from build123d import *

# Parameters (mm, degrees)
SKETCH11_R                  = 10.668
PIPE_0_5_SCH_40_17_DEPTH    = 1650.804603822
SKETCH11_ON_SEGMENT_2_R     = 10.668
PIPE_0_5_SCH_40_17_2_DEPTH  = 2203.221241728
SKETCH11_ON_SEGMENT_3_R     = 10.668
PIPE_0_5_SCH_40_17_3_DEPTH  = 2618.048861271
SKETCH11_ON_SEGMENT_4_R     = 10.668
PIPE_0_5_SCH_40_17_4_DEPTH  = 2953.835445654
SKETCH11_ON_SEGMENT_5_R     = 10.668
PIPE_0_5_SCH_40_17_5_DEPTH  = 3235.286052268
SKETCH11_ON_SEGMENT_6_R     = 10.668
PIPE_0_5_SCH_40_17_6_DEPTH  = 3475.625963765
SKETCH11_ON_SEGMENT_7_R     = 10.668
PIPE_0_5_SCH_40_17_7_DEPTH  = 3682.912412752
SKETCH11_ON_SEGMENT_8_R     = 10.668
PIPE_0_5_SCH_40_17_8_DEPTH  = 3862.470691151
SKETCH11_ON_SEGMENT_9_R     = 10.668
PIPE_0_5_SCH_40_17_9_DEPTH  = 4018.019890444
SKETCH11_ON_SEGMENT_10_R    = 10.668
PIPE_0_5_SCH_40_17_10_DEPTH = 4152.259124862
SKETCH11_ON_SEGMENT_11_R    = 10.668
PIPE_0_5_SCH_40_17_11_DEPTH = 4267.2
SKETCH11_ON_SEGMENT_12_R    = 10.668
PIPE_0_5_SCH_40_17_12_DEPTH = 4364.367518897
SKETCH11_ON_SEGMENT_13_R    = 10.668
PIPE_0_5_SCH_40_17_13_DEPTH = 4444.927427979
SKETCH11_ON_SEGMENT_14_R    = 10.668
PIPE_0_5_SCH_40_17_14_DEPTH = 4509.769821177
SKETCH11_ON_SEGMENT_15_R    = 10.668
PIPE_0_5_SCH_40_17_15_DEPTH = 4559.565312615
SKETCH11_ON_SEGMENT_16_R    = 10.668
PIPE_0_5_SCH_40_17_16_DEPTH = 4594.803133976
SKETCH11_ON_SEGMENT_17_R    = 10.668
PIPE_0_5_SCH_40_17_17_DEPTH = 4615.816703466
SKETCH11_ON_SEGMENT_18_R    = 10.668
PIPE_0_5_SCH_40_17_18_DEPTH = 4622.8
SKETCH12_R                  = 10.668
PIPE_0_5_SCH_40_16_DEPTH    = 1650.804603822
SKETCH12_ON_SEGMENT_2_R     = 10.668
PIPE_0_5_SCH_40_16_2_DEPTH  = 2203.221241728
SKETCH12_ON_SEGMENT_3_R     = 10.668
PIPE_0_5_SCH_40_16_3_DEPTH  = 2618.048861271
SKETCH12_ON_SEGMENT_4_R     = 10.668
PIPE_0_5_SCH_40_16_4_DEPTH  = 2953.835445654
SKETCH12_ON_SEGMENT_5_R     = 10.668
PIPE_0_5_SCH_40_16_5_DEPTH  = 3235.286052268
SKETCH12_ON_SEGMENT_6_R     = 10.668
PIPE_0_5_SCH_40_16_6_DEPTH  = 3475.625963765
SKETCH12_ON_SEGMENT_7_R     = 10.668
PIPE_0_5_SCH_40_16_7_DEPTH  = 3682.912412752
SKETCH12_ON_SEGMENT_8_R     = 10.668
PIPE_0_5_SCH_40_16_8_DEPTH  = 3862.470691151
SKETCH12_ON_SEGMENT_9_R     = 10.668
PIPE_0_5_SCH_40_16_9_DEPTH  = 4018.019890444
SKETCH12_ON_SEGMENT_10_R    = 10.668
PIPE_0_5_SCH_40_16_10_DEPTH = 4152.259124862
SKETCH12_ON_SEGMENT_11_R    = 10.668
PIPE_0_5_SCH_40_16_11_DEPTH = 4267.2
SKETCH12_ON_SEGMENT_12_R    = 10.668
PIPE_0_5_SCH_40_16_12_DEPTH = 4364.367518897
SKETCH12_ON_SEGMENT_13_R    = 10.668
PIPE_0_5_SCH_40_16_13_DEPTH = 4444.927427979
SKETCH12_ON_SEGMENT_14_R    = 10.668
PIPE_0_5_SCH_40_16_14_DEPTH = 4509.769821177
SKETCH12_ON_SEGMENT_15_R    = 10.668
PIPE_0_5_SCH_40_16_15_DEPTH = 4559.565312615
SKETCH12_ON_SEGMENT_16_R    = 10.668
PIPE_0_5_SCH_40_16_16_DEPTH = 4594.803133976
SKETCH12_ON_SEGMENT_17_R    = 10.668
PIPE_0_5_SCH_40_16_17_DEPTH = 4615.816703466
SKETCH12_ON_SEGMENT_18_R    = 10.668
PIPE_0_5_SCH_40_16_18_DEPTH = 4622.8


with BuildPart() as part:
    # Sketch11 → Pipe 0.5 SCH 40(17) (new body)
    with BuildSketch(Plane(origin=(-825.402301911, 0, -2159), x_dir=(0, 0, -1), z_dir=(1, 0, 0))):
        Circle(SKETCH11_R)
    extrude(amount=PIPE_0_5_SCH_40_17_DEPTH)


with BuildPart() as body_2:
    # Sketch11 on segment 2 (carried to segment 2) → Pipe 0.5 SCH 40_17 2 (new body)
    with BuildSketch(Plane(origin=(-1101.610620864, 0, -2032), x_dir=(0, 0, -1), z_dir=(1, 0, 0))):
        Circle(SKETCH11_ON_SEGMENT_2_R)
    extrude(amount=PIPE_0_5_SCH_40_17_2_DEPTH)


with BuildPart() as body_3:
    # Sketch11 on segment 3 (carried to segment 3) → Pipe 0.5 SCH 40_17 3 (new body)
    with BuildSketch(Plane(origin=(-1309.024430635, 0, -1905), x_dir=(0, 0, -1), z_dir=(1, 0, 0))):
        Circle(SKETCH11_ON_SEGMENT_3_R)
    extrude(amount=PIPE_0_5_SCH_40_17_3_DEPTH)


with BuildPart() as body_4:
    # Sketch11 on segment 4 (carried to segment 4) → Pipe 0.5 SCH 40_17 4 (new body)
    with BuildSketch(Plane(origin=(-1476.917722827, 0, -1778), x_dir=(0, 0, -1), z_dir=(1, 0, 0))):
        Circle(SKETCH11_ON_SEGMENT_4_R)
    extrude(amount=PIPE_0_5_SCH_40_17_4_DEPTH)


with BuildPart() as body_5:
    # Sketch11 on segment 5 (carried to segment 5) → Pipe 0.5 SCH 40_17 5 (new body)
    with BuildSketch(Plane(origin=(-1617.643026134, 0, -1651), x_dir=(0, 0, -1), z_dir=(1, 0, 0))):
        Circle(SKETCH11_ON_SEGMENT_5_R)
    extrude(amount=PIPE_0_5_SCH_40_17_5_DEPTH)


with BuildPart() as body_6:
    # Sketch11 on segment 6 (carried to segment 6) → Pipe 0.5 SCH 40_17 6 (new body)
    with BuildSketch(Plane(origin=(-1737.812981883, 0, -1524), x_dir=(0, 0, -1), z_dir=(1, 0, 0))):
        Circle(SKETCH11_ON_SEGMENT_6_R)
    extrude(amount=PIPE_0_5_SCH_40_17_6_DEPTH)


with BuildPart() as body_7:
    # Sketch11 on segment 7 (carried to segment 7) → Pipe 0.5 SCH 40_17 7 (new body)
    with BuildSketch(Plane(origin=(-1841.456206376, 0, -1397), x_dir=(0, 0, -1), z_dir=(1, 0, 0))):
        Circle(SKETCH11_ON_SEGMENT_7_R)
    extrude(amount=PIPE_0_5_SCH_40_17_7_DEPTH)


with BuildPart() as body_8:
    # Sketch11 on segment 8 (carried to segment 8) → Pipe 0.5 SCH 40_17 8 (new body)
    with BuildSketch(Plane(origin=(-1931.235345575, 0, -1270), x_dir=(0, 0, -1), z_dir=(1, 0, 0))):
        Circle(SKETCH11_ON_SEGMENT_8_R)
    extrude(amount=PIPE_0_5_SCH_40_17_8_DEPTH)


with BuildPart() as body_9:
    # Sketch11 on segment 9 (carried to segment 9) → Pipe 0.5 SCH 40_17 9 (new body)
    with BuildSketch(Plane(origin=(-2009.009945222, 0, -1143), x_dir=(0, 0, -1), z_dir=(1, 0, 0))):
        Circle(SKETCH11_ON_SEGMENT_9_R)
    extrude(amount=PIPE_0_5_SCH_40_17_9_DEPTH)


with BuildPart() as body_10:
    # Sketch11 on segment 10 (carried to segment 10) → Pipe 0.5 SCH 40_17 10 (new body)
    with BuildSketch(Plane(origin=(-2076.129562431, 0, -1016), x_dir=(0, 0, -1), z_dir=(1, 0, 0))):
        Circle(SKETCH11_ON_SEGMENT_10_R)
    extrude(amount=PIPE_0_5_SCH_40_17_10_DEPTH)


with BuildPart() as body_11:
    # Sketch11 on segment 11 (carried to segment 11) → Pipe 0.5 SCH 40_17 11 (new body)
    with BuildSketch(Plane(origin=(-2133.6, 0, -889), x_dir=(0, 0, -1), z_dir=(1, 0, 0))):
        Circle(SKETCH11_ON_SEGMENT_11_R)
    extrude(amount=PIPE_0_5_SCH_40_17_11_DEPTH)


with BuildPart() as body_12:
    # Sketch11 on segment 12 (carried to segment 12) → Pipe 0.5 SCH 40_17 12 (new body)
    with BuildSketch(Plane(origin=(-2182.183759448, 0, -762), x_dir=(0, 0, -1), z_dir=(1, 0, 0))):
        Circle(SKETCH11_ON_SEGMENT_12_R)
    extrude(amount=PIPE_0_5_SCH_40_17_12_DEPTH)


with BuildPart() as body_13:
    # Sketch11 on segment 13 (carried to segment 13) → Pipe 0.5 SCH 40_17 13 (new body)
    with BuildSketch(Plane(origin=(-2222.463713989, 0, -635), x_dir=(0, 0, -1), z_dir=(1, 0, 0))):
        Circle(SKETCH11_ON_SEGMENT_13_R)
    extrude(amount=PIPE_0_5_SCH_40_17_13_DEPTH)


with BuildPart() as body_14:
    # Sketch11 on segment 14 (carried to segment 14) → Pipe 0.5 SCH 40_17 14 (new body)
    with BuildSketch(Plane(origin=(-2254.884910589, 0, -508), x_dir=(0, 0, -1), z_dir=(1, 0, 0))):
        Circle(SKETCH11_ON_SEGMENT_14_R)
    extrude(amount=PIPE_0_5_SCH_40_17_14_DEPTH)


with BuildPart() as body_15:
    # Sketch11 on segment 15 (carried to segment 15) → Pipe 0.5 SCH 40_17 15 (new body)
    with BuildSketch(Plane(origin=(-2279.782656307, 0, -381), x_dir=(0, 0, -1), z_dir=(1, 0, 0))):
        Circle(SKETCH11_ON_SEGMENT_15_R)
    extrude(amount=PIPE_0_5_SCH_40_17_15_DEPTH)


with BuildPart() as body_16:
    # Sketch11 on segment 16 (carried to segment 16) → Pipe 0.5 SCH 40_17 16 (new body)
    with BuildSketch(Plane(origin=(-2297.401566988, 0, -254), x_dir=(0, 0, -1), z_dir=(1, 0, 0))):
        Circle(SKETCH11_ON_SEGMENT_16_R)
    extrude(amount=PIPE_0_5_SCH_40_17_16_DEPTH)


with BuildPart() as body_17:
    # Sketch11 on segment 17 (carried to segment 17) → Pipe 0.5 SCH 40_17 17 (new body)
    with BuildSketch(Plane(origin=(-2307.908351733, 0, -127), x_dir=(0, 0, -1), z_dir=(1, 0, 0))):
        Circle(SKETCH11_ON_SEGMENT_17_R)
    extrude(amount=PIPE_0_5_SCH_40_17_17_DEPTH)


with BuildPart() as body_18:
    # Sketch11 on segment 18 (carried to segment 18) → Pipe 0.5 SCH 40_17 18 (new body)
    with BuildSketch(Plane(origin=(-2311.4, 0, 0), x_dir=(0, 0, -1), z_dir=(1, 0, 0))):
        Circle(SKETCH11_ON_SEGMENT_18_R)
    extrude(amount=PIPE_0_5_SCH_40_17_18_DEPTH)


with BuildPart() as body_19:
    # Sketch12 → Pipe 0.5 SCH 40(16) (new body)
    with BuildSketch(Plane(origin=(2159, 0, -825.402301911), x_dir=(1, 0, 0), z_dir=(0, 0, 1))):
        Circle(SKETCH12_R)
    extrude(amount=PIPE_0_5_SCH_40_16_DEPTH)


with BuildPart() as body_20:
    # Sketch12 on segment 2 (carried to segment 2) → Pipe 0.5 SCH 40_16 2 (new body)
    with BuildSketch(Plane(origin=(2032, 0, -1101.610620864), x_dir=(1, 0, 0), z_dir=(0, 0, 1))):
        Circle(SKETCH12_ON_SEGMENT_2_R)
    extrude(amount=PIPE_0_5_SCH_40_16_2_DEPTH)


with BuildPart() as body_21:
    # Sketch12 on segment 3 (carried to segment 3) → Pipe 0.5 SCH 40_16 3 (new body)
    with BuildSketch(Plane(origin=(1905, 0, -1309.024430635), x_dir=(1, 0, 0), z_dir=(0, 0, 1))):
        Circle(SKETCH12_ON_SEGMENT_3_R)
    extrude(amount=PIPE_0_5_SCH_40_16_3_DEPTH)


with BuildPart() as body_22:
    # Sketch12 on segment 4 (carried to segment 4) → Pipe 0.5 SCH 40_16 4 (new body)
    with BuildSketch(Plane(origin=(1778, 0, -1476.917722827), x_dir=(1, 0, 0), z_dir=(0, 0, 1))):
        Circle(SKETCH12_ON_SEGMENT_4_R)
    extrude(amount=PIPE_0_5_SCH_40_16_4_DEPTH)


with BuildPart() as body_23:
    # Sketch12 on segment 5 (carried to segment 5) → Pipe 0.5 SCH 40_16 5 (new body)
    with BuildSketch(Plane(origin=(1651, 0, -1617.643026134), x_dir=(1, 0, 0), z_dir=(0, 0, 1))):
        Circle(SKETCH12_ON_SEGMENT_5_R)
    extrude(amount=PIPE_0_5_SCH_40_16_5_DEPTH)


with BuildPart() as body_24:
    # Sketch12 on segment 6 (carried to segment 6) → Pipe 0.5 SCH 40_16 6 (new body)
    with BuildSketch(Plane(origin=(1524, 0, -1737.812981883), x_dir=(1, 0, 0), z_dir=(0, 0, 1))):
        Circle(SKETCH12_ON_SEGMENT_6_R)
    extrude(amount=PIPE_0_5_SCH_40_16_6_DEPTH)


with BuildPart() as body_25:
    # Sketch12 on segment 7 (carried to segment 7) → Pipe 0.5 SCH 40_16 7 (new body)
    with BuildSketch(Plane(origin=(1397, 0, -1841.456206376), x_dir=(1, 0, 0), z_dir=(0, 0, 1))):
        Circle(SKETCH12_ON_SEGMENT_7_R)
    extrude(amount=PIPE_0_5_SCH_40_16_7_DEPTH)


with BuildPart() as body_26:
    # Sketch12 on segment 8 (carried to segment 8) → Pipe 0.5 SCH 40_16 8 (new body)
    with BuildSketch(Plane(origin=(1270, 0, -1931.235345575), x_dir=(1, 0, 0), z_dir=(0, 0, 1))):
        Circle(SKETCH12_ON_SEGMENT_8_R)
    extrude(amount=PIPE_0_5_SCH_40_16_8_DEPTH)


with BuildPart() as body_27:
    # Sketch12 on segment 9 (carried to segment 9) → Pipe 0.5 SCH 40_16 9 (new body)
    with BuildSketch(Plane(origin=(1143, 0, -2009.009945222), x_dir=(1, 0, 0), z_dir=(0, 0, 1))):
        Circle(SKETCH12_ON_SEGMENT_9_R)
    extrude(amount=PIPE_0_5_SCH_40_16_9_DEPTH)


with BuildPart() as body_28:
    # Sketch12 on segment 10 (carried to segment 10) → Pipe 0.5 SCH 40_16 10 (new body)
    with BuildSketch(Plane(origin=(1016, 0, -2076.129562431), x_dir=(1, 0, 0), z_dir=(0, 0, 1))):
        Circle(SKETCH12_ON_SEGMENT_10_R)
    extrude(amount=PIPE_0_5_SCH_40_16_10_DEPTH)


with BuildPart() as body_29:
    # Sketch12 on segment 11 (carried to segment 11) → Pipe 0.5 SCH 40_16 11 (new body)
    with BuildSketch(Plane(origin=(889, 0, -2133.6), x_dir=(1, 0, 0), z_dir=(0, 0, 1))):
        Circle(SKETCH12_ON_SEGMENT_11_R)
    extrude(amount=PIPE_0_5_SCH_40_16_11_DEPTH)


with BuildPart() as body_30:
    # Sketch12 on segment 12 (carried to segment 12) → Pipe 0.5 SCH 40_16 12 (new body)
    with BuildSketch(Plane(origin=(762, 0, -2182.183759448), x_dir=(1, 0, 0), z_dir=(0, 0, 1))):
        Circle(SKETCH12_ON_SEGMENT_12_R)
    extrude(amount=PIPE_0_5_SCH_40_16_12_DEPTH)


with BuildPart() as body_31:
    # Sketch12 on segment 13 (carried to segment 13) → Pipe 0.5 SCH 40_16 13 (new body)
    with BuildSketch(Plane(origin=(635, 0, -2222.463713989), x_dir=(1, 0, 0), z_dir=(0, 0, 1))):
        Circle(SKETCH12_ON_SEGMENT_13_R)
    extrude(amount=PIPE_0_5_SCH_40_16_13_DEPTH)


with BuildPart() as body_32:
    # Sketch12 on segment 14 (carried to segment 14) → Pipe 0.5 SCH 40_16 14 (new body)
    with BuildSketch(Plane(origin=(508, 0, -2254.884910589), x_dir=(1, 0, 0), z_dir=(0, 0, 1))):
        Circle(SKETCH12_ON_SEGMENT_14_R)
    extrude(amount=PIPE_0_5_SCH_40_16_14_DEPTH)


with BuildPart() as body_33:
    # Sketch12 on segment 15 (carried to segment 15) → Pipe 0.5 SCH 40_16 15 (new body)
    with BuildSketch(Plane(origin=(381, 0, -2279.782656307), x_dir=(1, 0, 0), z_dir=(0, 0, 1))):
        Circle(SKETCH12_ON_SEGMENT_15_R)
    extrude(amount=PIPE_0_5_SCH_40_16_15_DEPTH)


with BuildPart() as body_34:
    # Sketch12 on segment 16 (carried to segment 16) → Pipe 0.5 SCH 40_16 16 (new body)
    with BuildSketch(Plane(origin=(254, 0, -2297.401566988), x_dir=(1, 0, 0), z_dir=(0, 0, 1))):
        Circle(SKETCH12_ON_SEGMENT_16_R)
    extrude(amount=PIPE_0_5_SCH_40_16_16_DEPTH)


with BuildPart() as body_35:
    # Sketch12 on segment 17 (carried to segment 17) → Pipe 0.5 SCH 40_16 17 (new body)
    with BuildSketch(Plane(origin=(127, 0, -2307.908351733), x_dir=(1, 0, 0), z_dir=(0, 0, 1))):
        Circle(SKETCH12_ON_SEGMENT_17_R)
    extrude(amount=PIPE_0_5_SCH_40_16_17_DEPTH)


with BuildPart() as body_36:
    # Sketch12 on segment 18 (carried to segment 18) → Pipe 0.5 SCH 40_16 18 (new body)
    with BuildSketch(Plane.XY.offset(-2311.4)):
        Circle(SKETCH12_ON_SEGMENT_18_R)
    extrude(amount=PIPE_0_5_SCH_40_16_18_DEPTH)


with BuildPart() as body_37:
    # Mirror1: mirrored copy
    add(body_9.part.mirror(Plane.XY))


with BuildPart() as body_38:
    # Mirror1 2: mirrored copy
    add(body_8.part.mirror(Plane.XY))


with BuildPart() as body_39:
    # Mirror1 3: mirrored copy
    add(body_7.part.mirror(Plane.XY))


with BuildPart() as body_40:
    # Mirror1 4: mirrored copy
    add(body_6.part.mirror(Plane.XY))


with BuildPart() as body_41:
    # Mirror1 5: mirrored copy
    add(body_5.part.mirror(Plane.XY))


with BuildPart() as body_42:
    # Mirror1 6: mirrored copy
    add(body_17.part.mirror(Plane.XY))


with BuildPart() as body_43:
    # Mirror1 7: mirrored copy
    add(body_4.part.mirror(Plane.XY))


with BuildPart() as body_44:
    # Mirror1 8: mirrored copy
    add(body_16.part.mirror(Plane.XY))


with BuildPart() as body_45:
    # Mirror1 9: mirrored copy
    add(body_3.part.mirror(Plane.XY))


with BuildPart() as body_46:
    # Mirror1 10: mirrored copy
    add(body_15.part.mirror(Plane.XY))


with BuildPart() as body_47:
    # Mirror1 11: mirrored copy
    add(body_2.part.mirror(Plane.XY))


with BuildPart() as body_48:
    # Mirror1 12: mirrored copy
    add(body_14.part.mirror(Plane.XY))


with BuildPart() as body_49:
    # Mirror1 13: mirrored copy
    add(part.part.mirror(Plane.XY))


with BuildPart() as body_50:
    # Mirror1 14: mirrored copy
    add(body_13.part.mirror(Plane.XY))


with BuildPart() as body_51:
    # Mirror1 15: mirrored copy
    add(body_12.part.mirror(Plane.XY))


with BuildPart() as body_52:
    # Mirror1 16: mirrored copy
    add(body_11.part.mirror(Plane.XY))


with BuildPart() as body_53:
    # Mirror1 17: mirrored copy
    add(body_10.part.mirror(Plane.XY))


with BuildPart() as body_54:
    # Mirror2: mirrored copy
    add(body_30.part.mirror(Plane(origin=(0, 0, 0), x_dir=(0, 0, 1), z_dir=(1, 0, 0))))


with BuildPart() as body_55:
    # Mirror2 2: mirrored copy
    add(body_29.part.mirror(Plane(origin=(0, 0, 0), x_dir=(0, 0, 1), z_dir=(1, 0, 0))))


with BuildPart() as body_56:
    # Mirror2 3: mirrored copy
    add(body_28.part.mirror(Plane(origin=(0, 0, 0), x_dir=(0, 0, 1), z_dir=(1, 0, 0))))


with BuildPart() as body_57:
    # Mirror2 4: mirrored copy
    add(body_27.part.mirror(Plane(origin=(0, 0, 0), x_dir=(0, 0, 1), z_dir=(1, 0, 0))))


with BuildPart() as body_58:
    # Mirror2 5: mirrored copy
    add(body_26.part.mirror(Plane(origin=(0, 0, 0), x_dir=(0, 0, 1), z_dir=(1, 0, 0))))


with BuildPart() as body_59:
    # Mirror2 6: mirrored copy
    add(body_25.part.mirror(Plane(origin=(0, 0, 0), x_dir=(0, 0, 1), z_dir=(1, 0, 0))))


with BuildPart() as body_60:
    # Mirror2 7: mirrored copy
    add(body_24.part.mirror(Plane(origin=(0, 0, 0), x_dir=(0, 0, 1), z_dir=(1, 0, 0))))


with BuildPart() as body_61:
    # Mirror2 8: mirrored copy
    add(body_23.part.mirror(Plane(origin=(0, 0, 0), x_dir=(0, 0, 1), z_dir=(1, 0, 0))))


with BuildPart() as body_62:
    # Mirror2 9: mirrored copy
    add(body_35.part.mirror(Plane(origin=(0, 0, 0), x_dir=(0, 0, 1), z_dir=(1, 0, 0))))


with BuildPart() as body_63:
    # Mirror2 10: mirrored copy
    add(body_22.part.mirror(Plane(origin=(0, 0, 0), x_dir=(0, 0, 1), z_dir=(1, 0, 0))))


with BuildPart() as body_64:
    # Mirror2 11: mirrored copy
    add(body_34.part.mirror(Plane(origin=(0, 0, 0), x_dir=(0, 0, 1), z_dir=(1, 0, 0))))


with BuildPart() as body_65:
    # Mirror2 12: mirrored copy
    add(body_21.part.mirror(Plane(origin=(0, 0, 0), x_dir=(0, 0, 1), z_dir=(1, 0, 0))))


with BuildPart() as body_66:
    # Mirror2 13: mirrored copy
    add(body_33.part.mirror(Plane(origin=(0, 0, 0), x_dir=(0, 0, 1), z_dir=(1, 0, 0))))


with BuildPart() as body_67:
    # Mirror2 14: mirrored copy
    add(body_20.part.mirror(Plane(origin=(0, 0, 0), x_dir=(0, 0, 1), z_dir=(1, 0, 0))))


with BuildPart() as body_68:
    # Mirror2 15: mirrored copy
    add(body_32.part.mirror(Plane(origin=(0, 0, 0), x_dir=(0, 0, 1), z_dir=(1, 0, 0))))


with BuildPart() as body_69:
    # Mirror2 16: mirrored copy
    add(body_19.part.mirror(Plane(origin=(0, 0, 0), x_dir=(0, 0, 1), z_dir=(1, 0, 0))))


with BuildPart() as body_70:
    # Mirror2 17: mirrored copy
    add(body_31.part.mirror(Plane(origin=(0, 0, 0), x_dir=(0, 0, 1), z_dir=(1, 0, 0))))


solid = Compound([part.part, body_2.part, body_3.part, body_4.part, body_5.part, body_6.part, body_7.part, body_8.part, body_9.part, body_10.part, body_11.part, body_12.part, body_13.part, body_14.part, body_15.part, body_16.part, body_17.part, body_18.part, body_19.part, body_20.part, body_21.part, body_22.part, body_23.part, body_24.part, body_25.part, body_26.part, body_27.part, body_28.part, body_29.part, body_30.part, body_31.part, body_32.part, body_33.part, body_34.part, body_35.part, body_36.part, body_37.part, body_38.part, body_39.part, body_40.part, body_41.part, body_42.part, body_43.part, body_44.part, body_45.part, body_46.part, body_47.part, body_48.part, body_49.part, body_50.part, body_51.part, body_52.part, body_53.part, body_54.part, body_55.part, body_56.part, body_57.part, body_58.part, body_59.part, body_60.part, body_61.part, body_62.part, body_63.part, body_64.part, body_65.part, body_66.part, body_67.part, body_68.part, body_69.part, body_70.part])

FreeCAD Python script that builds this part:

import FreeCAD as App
import Part
import Sketcher
Q = App.Units.Quantity

doc = App.newDocument("Part")
body = doc.addObject("PartDesign::Body", "Body")

# Sketch on YZ plane
sketch1 = body.newObject("Sketcher::SketchObject", "Sketch")
sketch1.AttachmentSupport = (doc.getObject("YZ_Plane"), [""])
sketch1.MapMode = "FlatFace"
sketch1.AttachmentOffset = App.Placement(App.Vector(0, 0, -825.402302), App.Rotation())
sketch1.addGeometry(Part.Circle(App.Vector(0, -2159, 0), App.Vector(0, 0, 1), 11), False)
sketch1.addConstraint(Sketcher.Constraint("PointOnObject", 0, 3, -2))
sketch1.addConstraint(Sketcher.Constraint("Diameter", 0, Q("0.84 in")))
sketch1.addConstraint(Sketcher.Constraint("DistanceY", 0, 3, -1, 1, Q("85 in")))
pad1 = body.newObject("PartDesign::Pad", "Pad")
pad1.Profile = sketch1
pad1.Length = 1650.804604
body2 = doc.addObject("PartDesign::Body", "Body001")

# Sketch on YZ plane
sketch2 = body2.newObject("Sketcher::SketchObject", "Sketch001")
sketch2.AttachmentSupport = (doc.getObject("YZ_Plane001"), [""])
sketch2.MapMode = "FlatFace"
sketch2.AttachmentOffset = App.Placement(App.Vector(0, 0, -1101.610621), App.Rotation())
sketch2.addGeometry(Part.Circle(App.Vector(0, -2032, 0), App.Vector(0, 0, 1), 11), False)
sketch2.addConstraint(Sketcher.Constraint("PointOnObject", 0, 3, -2))
sketch2.addConstraint(Sketcher.Constraint("Diameter", 0, Q("0.84 in")))
sketch2.addConstraint(Sketcher.Constraint("DistanceY", 0, 3, -1, 1, Q("80 in")))
pad2 = body2.newObject("PartDesign::Pad", "Pad001")
pad2.Profile = sketch2
pad2.Length = 2203.221242
body3 = doc.addObject("PartDesign::Body", "Body002")

# Sketch on YZ plane
sketch3 = body3.newObject("Sketcher::SketchObject", "Sketch002")
sketch3.AttachmentSupport = (doc.getObject("YZ_Plane002"), [""])
sketch3.MapMode = "FlatFace"
sketch3.AttachmentOffset = App.Placement(App.Vector(0, 0, -1309.024431), App.Rotation())
sketch3.addGeometry(Part.Circle(App.Vector(0, -1905, 0), App.Vector(0, 0, 1), 11), False)
sketch3.addConstraint(Sketcher.Constraint("PointOnObject", 0, 3, -2))
sketch3.addConstraint(Sketcher.Constraint("Diameter", 0, Q("0.84 in")))
sketch3.addConstraint(Sketcher.Constraint("DistanceY", 0, 3, -1, 1, Q("75 in")))
pad3 = body3.newObject("PartDesign::Pad", "Pad002")
pad3.Profile = sketch3
pad3.Length = 2618.048861
body4 = doc.addObject("PartDesign::Body", "Body003")

# Sketch on YZ plane
sketch4 = body4.newObject("Sketcher::SketchObject", "Sketch003")
sketch4.AttachmentSupport = (doc.getObject("YZ_Plane003"), [""])
sketch4.MapMode = "FlatFace"
sketch4.AttachmentOffset = App.Placement(App.Vector(0, 0, -1476.917723), App.Rotation())
sketch4.addGeometry(Part.Circle(App.Vector(0, -1778, 0), App.Vector(0, 0, 1), 11), False)
sketch4.addConstraint(Sketcher.Constraint("PointOnObject", 0, 3, -2))
sketch4.addConstraint(Sketcher.Constraint("Diameter", 0, Q("0.84 in")))
sketch4.addConstraint(Sketcher.Constraint("DistanceY", 0, 3, -1, 1, Q("70 in")))
pad4 = body4.newObject("PartDesign::Pad", "Pad003")
pad4.Profile = sketch4
pad4.Length = 2953.835446
body5 = doc.addObject("PartDesign::Body", "Body004")

# Sketch on YZ plane
sketch5 = body5.newObject("Sketcher::SketchObject", "Sketch004")
sketch5.AttachmentSupport = (doc.getObject("YZ_Plane004"), [""])
sketch5.MapMode = "FlatFace"
sketch5.AttachmentOffset = App.Placement(App.Vector(0, 0, -1617.643026), App.Rotation())
sketch5.addGeometry(Part.Circle(App.Vector(0, -1651, 0), App.Vector(0, 0, 1), 11), False)
sketch5.addConstraint(Sketcher.Constraint("PointOnObject", 0, 3, -2))
sketch5.addConstraint(Sketcher.Constraint("Diameter", 0, Q("0.84 in")))
sketch5.addConstraint(Sketcher.Constraint("DistanceY", 0, 3, -1, 1, Q("65 in")))
pad5 = body5.newObject("PartDesign::Pad", "Pad004")
pad5.Profile = sketch5
pad5.Length = 3235.286052
body6 = doc.addObject("PartDesign::Body", "Body005")

# Sketch on YZ plane
sketch6 = body6.newObject("Sketcher::SketchObject", "Sketch005")
sketch6.AttachmentSupport = (doc.getObject("YZ_Plane005"), [""])
sketch6.MapMode = "FlatFace"
sketch6.AttachmentOffset = App.Placement(App.Vector(0, 0, -1737.812982), App.Rotation())
sketch6.addGeometry(Part.Circle(App.Vector(0, -1524, 0), App.Vector(0, 0, 1), 11), False)
sketch6.addConstraint(Sketcher.Constraint("PointOnObject", 0, 3, -2))
sketch6.addConstraint(Sketcher.Constraint("Diameter", 0, Q("0.84 in")))
sketch6.addConstraint(Sketcher.Constraint("DistanceY", 0, 3, -1, 1, Q("60 in")))
pad6 = body6.newObject("PartDesign::Pad", "Pad005")
pad6.Profile = sketch6
pad6.Length = 3475.625964
body7 = doc.addObject("PartDesign::Body", "Body006")

# Sketch on YZ plane
sketch7 = body7.newObject("Sketcher::SketchObject", "Sketch006")
sketch7.AttachmentSupport = (doc.getObject("YZ_Plane006"), [""])
sketch7.MapMode = "FlatFace"
sketch7.AttachmentOffset = App.Placement(App.Vector(0, 0, -1841.456206), App.Rotation())
sketch7.addGeometry(Part.Circle(App.Vector(0, -1397, 0), App.Vector(0, 0, 1), 11), False)
sketch7.addConstraint(Sketcher.Constraint("PointOnObject", 0, 3, -2))
sketch7.addConstraint(Sketcher.Constraint("Diameter", 0, Q("0.84 in")))
sketch7.addConstraint(Sketcher.Constraint("DistanceY", 0, 3, -1, 1, Q("55 in")))
pad7 = body7.newObject("PartDesign::Pad", "Pad006")
pad7.Profile = sketch7
pad7.Length = 3682.912413
body8 = doc.addObject("PartDesign::Body", "Body007")

# Sketch on YZ plane
sketch8 = body8.newObject("Sketcher::SketchObject", "Sketch007")
sketch8.AttachmentSupport = (doc.getObject("YZ_Plane007"), [""])
sketch8.MapMode = "FlatFace"
sketch8.AttachmentOffset = App.Placement(App.Vector(0, 0, -1931.235346), App.Rotation())
sketch8.addGeometry(Part.Circle(App.Vector(0, -1270, 0), App.Vector(0, 0, 1), 11), False)
sketch8.addConstraint(Sketcher.Constraint("PointOnObject", 0, 3, -2))
sketch8.addConstraint(Sketcher.Constraint("Diameter", 0, Q("0.84 in")))
sketch8.addConstraint(Sketcher.Constraint("DistanceY", 0, 3, -1, 1, Q("50 in")))
pad8 = body8.newObject("PartDesign::Pad", "Pad007")
pad8.Profile = sketch8
pad8.Length = 3862.470691
body9 = doc.addObject("PartDesign::Body", "Body008")

# Sketch on YZ plane
sketch9 = body9.newObject("Sketcher::SketchObject", "Sketch008")
sketch9.AttachmentSupport = (doc.getObject("YZ_Plane008"), [""])
sketch9.MapMode = "FlatFace"
sketch9.AttachmentOffset = App.Placement(App.Vector(0, 0, -2009.009945), App.Rotation())
sketch9.addGeometry(Part.Circle(App.Vector(0, -1143, 0), App.Vector(0, 0, 1), 11), False)
sketch9.addConstraint(Sketcher.Constraint("PointOnObject", 0, 3, -2))
sketch9.addConstraint(Sketcher.Constraint("Diameter", 0, Q("0.84 in")))
sketch9.addConstraint(Sketcher.Constraint("DistanceY", 0, 3, -1, 1, Q("45 in")))
pad9 = body9.newObject("PartDesign::Pad", "Pad008")
pad9.Profile = sketch9
pad9.Length = 4018.01989
body10 = doc.addObject("PartDesign::Body", "Body009")

# Sketch on YZ plane
sketch10 = body10.newObject("Sketcher::SketchObject", "Sketch009")
sketch10.AttachmentSupport = (doc.getObject("YZ_Plane009"), [""])
sketch10.MapMode = "FlatFace"
sketch10.AttachmentOffset = App.Placement(App.Vector(0, 0, -2076.129562), App.Rotation())
sketch10.addGeometry(Part.Circle(App.Vector(0, -1016, 0), App.Vector(0, 0, 1), 11), False)
sketch10.addConstraint(Sketcher.Constraint("PointOnObject", 0, 3, -2))
sketch10.addConstraint(Sketcher.Constraint("Diameter", 0, Q("0.84 in")))
sketch10.addConstraint(Sketcher.Constraint("DistanceY", 0, 3, -1, 1, Q("40 in")))
pad10 = body10.newObject("PartDesign::Pad", "Pad009")
pad10.Profile = sketch10
pad10.Length = 4152.259125
body11 = doc.addObject("PartDesign::Body", "Body010")

# Sketch on YZ plane
sketch11 = body11.newObject("Sketcher::SketchObject", "Sketch010")
sketch11.AttachmentSupport = (doc.getObject("YZ_Plane010"), [""])
sketch11.MapMode = "FlatFace"
sketch11.AttachmentOffset = App.Placement(App.Vector(0, 0, -84 * 25.4), App.Rotation())
sketch11.addGeometry(Part.Circle(App.Vector(0, -889, 0), App.Vector(0, 0, 1), 11), False)
sketch11.addConstraint(Sketcher.Constraint("PointOnObject", 0, 3, -2))
sketch11.addConstraint(Sketcher.Constraint("Diameter", 0, Q("0.84 in")))
sketch11.addConstraint(Sketcher.Constraint("DistanceY", 0, 3, -1, 1, Q("35 in")))
pad11 = body11.newObject("PartDesign::Pad", "Pad010")
pad11.Profile = sketch11
pad11.Length = Q("168 in")
body12 = doc.addObject("PartDesign::Body", "Body011")

# Sketch on YZ plane
sketch12 = body12.newObject("Sketcher::SketchObject", "Sketch011")
sketch12.AttachmentSupport = (doc.getObject("YZ_Plane011"), [""])
sketch12.MapMode = "FlatFace"
sketch12.AttachmentOffset = App.Placement(App.Vector(0, 0, -2182.183759), App.Rotation())
sketch12.addGeometry(Part.Circle(App.Vector(0, -762, 0), App.Vector(0, 0, 1), 11), False)
sketch12.addConstraint(Sketcher.Constraint("PointOnObject", 0, 3, -2))
sketch12.addConstraint(Sketcher.Constraint("Diameter", 0, Q("0.84 in")))
sketch12.addConstraint(Sketcher.Constraint("DistanceY", 0, 3, -1, 1, Q("30 in")))
pad12 = body12.newObject("PartDesign::Pad", "Pad011")
pad12.Profile = sketch12
pad12.Length = 4364.367519
body13 = doc.addObject("PartDesign::Body", "Body012")

# Sketch on YZ plane
sketch13 = body13.newObject("Sketcher::SketchObject", "Sketch012")
sketch13.AttachmentSupport = (doc.getObject("YZ_Plane012"), [""])
sketch13.MapMode = "FlatFace"
sketch13.AttachmentOffset = App.Placement(App.Vector(0, 0, -2222.463714), App.Rotation())
sketch13.addGeometry(Part.Circle(App.Vector(0, -635, 0), App.Vector(0, 0, 1), 11), False)
sketch13.addConstraint(Sketcher.Constraint("PointOnObject", 0, 3, -2))
sketch13.addConstraint(Sketcher.Constraint("Diameter", 0, Q("0.84 in")))
sketch13.addConstraint(Sketcher.Constraint("DistanceY", 0, 3, -1, 1, Q("25 in")))
pad13 = body13.newObject("PartDesign::Pad", "Pad012")
pad13.Profile = sketch13
pad13.Length = 4444.927428
body14 = doc.addObject("PartDesign::Body", "Body013")

# Sketch on YZ plane
sketch14 = body14.newObject("Sketcher::SketchObject", "Sketch013")
sketch14.AttachmentSupport = (doc.getObject("YZ_Plane013"), [""])
sketch14.MapMode = "FlatFace"
sketch14.AttachmentOffset = App.Placement(App.Vector(0, 0, -2254.884911), App.Rotation())
sketch14.addGeometry(Part.Circle(App.Vector(0, -508, 0), App.Vector(0, 0, 1), 11), False)
sketch14.addConstraint(Sketcher.Constraint("PointOnObject", 0, 3, -2))
sketch14.addConstraint(Sketcher.Constraint("Diameter", 0, Q("0.84 in")))
sketch14.addConstraint(Sketcher.Constraint("DistanceY", 0, 3, -1, 1, Q("20 in")))
pad14 = body14.newObject("PartDesign::Pad", "Pad013")
pad14.Profile = sketch14
pad14.Length = 4509.769821
body15 = doc.addObject("PartDesign::Body", "Body014")

# Sketch on YZ plane
sketch15 = body15.newObject("Sketcher::SketchObject", "Sketch014")
sketch15.AttachmentSupport = (doc.getObject("YZ_Plane014"), [""])
sketch15.MapMode = "FlatFace"
sketch15.AttachmentOffset = App.Placement(App.Vector(0, 0, -2279.782656), App.Rotation())
sketch15.addGeometry(Part.Circle(App.Vector(0, -381, 0), App.Vector(0, 0, 1), 11), False)
sketch15.addConstraint(Sketcher.Constraint("PointOnObject", 0, 3, -2))
sketch15.addConstraint(Sketcher.Constraint("Diameter", 0, Q("0.84 in")))
sketch15.addConstraint(Sketcher.Constraint("DistanceY", 0, 3, -1, 1, Q("15 in")))
pad15 = body15.newObject("PartDesign::Pad", "Pad014")
pad15.Profile = sketch15
pad15.Length = 4559.565313
body16 = doc.addObject("PartDesign::Body", "Body015")

# Sketch on YZ plane
sketch16 = body16.newObject("Sketcher::SketchObject", "Sketch015")
sketch16.AttachmentSupport = (doc.getObject("YZ_Plane015"), [""])
sketch16.MapMode = "FlatFace"
sketch16.AttachmentOffset = App.Placement(App.Vector(0, 0, -2297.401567), App.Rotation())
sketch16.addGeometry(Part.Circle(App.Vector(0, -254, 0), App.Vector(0, 0, 1), 11), False)
sketch16.addConstraint(Sketcher.Constraint("PointOnObject", 0, 3, -2))
sketch16.addConstraint(Sketcher.Constraint("Diameter", 0, Q("0.84 in")))
sketch16.addConstraint(Sketcher.Constraint("DistanceY", 0, 3, -1, 1, Q("10 in")))
pad16 = body16.newObject("PartDesign::Pad", "Pad015")
pad16.Profile = sketch16
pad16.Length = 4594.803134
body17 = doc.addObject("PartDesign::Body", "Body016")

# Sketch on YZ plane
sketch17 = body17.newObject("Sketcher::SketchObject", "Sketch016")
sketch17.AttachmentSupport = (doc.getObject("YZ_Plane016"), [""])
sketch17.MapMode = "FlatFace"
sketch17.AttachmentOffset = App.Placement(App.Vector(0, 0, -2307.908352), App.Rotation())
sketch17.addGeometry(Part.Circle(App.Vector(0, -127, 0), App.Vector(0, 0, 1), 11), False)
sketch17.addConstraint(Sketcher.Constraint("PointOnObject", 0, 3, -2))
sketch17.addConstraint(Sketcher.Constraint("Diameter", 0, Q("0.84 in")))
sketch17.addConstraint(Sketcher.Constraint("DistanceY", 0, 3, -1, 1, Q("5 in")))
pad17 = body17.newObject("PartDesign::Pad", "Pad016")
pad17.Profile = sketch17
pad17.Length = 4615.816703
body18 = doc.addObject("PartDesign::Body", "Body017")

# Sketch on YZ plane
sketch18 = body18.newObject("Sketcher::SketchObject", "Sketch017")
sketch18.AttachmentSupport = (doc.getObject("YZ_Plane017"), [""])
sketch18.MapMode = "FlatFace"
sketch18.AttachmentOffset = App.Placement(App.Vector(0, 0, -91 * 25.4), App.Rotation())
sketch18.addGeometry(Part.Circle(App.Vector(0, 0, 0), App.Vector(0, 0, 1), 11), False)
sketch18.addConstraint(Sketcher.Constraint("Coincident", 0, 3, -1, 1))
sketch18.addConstraint(Sketcher.Constraint("Diameter", 0, Q("0.84 in")))
pad18 = body18.newObject("PartDesign::Pad", "Pad017")
pad18.Profile = sketch18
pad18.Length = Q("182 in")
body19 = doc.addObject("PartDesign::Body", "Body018")

# Sketch on XY plane
sketch19 = body19.newObject("Sketcher::SketchObject", "Sketch018")
sketch19.AttachmentSupport = (doc.getObject("XY_Plane018"), [""])
sketch19.MapMode = "FlatFace"
sketch19.AttachmentOffset = App.Placement(App.Vector(0, 0, -825.402302), App.Rotation())
sketch19.addGeometry(Part.Circle(App.Vector(2159, 0, 0), App.Vector(0, 0, 1), 11), False)
sketch19.addConstraint(Sketcher.Constraint("PointOnObject", 0, 3, -1))
sketch19.addConstraint(Sketcher.Constraint("Diameter", 0, Q("0.84 in")))
sketch19.addConstraint(Sketcher.Constraint("DistanceX", -1, 1, 0, 3, Q("85 in")))
pad19 = body19.newObject("PartDesign::Pad", "Pad018")
pad19.Profile = sketch19
pad19.Length = 1650.804604
body20 = doc.addObject("PartDesign::Body", "Body019")

# Sketch on XY plane
sketch20 = body20.newObject("Sketcher::SketchObject", "Sketch019")
sketch20.AttachmentSupport = (doc.getObject("XY_Plane019"), [""])
sketch20.MapMode = "FlatFace"
sketch20.AttachmentOffset = App.Placement(App.Vector(0, 0, -1101.610621), App.Rotation())
sketch20.addGeometry(Part.Circle(App.Vector(2032, 0, 0), App.Vector(0, 0, 1), 11), False)
sketch20.addConstraint(Sketcher.Constraint("PointOnObject", 0, 3, -1))
sketch20.addConstraint(Sketcher.Constraint("Diameter", 0, Q("0.84 in")))
sketch20.addConstraint(Sketcher.Constraint("DistanceX", -1, 1, 0, 3, Q("80 in")))
pad20 = body20.newObject("PartDesign::Pad", "Pad019")
pad20.Profile = sketch20
pad20.Length = 2203.221242
body21 = doc.addObject("PartDesign::Body", "Body020")

# Sketch on XY plane
sketch21 = body21.newObject("Sketcher::SketchObject", "Sketch020")
sketch21.AttachmentSupport = (doc.getObject("XY_Plane020"), [""])
sketch21.MapMode = "FlatFace"
sketch21.AttachmentOffset = App.Placement(App.Vector(0, 0, -1309.024431), App.Rotation())
sketch21.addGeometry(Part.Circle(App.Vector(1905, 0, 0), App.Vector(0, 0, 1), 11), False)
sketch21.addConstraint(Sketcher.Constraint("PointOnObject", 0, 3, -1))
sketch21.addConstraint(Sketcher.Constraint("Diameter", 0, Q("0.84 in")))
sketch21.addConstraint(Sketcher.Constraint("DistanceX", -1, 1, 0, 3, Q("75 in")))
pad21 = body21.newObject("PartDesign::Pad", "Pad020")
pad21.Profile = sketch21
pad21.Length = 2618.048861
body22 = doc.addObject("PartDesign::Body", "Body021")

# Sketch on XY plane
sketch22 = body22.newObject("Sketcher::SketchObject", "Sketch021")
sketch22.AttachmentSupport = (doc.getObject("XY_Plane021"), [""])
sketch22.MapMode = "FlatFace"
sketch22.AttachmentOffset = App.Placement(App.Vector(0, 0, -1476.917723), App.Rotation())
sketch22.addGeometry(Part.Circle(App.Vector(1778, 0, 0), App.Vector(0, 0, 1), 11), False)
sketch22.addConstraint(Sketcher.Constraint("PointOnObject", 0, 3, -1))
sketch22.addConstraint(Sketcher.Constraint("Diameter", 0, Q("0.84 in")))
sketch22.addConstraint(Sketcher.Constraint("DistanceX", -1, 1, 0, 3, Q("70 in")))
pad22 = body22.newObject("PartDesign::Pad", "Pad021")
pad22.Profile = sketch22
pad22.Length = 2953.835446
body23 = doc.addObject("PartDesign::Body", "Body022")

# Sketch on XY plane
sketch23 = body23.newObject("Sketcher::SketchObject", "Sketch022")
sketch23.AttachmentSupport = (doc.getObject("XY_Plane022"), [""])
sketch23.MapMode = "FlatFace"
sketch23.AttachmentOffset = App.Placement(App.Vector(0, 0, -1617.643026), App.Rotation())
sketch23.addGeometry(Part.Circle(App.Vector(1651, 0, 0), App.Vector(0, 0, 1), 11), False)
sketch23.addConstraint(Sketcher.Constraint("PointOnObject", 0, 3, -1))
sketch23.addConstraint(Sketcher.Constraint("Diameter", 0, Q("0.84 in")))
sketch23.addConstraint(Sketcher.Constraint("DistanceX", -1, 1, 0, 3, Q("65 in")))
pad23 = body23.newObject("PartDesign::Pad", "Pad022")
pad23.Profile = sketch23
pad23.Length = 3235.286052
body24 = doc.addObject("PartDesign::Body", "Body023")

# Sketch on XY plane
sketch24 = body24.newObject("Sketcher::SketchObject", "Sketch023")
sketch24.AttachmentSupport = (doc.getObject("XY_Plane023"), [""])
sketch24.MapMode = "FlatFace"
sketch24.AttachmentOffset = App.Placement(App.Vector(0, 0, -1737.812982), App.Rotation())
sketch24.addGeometry(Part.Circle(App.Vector(1524, 0, 0), App.Vector(0, 0, 1), 11), False)
sketch24.addConstraint(Sketcher.Constraint("PointOnObject", 0, 3, -1))
sketch24.addConstraint(Sketcher.Constraint("Diameter", 0, Q("0.84 in")))
sketch24.addConstraint(Sketcher.Constraint("DistanceX", -1, 1, 0, 3, Q("60 in")))
pad24 = body24.newObject("PartDesign::Pad", "Pad023")
pad24.Profile = sketch24
pad24.Length = 3475.625964
body25 = doc.addObject("PartDesign::Body", "Body024")

# Sketch on XY plane
sketch25 = body25.newObject("Sketcher::SketchObject", "Sketch024")
sketch25.AttachmentSupport = (doc.getObject("XY_Plane024"), [""])
sketch25.MapMode = "FlatFace"
sketch25.AttachmentOffset = App.Placement(App.Vector(0, 0, -1841.456206), App.Rotation())
sketch25.addGeometry(Part.Circle(App.Vector(1397, 0, 0), App.Vector(0, 0, 1), 11), False)
sketch25.addConstraint(Sketcher.Constraint("PointOnObject", 0, 3, -1))
sketch25.addConstraint(Sketcher.Constraint("Diameter", 0, Q("0.84 in")))
sketch25.addConstraint(Sketcher.Constraint("DistanceX", -1, 1, 0, 3, Q("55 in")))
pad25 = body25.newObject("PartDesign::Pad", "Pad024")
pad25.Profile = sketch25
pad25.Length = 3682.912413
body26 = doc.addObject("PartDesign::Body", "Body025")

# Sketch on XY plane
sketch26 = body26.newObject("Sketcher::SketchObject", "Sketch025")
sketch26.AttachmentSupport = (doc.getObject("XY_Plane025"), [""])
sketch26.MapMode = "FlatFace"
sketch26.AttachmentOffset = App.Placement(App.Vector(0, 0, -1931.235346), App.Rotation())
sketch26.addGeometry(Part.Circle(App.Vector(1270, 0, 0), App.Vector(0, 0, 1), 11), False)
sketch26.addConstraint(Sketcher.Constraint("PointOnObject", 0, 3, -1))
sketch26.addConstraint(Sketcher.Constraint("Diameter", 0, Q("0.84 in")))
sketch26.addConstraint(Sketcher.Constraint("DistanceX", -1, 1, 0, 3, Q("50 in")))
pad26 = body26.newObject("PartDesign::Pad", "Pad025")
pad26.Profile = sketch26
pad26.Length = 3862.470691
body27 = doc.addObject("PartDesign::Body", "Body026")

# Sketch on XY plane
sketch27 = body27.newObject("Sketcher::SketchObject", "Sketch026")
sketch27.AttachmentSupport = (doc.getObject("XY_Plane026"), [""])
sketch27.MapMode = "FlatFace"
sketch27.AttachmentOffset = App.Placement(App.Vector(0, 0, -2009.009945), App.Rotation())
sketch27.addGeometry(Part.Circle(App.Vector(1143, 0, 0), App.Vector(0, 0, 1), 11), False)
sketch27.addConstraint(Sketcher.Constraint("PointOnObject", 0, 3, -1))
sketch27.addConstraint(Sketcher.Constraint("Diameter", 0, Q("0.84 in")))
sketch27.addConstraint(Sketcher.Constraint("DistanceX", -1, 1, 0, 3, Q("45 in")))
pad27 = body27.newObject("PartDesign::Pad", "Pad026")
pad27.Profile = sketch27
pad27.Length = 4018.01989
body28 = doc.addObject("PartDesign::Body", "Body027")

# Sketch on XY plane
sketch28 = body28.newObject("Sketcher::SketchObject", "Sketch027")
sketch28.AttachmentSupport = (doc.getObject("XY_Plane027"), [""])
sketch28.MapMode = "FlatFace"
sketch28.AttachmentOffset = App.Placement(App.Vector(0, 0, -2076.129562), App.Rotation())
sketch28.addGeometry(Part.Circle(App.Vector(1016, 0, 0), App.Vector(0, 0, 1), 11), False)
sketch28.addConstraint(Sketcher.Constraint("PointOnObject", 0, 3, -1))
sketch28.addConstraint(Sketcher.Constraint("Diameter", 0, Q("0.84 in")))
sketch28.addConstraint(Sketcher.Constraint("DistanceX", -1, 1, 0, 3, Q("40 in")))
pad28 = body28.newObject("PartDesign::Pad", "Pad027")
pad28.Profile = sketch28
pad28.Length = 4152.259125
body29 = doc.addObject("PartDesign::Body", "Body028")

# Sketch on XY plane
sketch29 = body29.newObject("Sketcher::SketchObject", "Sketch028")
sketch29.AttachmentSupport = (doc.getObject("XY_Plane028"), [""])
sketch29.MapMode = "FlatFace"
sketch29.AttachmentOffset = App.Placement(App.Vector(0, 0, -84 * 25.4), App.Rotation())
sketch29.addGeometry(Part.Circle(App.Vector(889, 0, 0), App.Vector(0, 0, 1), 11), False)
sketch29.addConstraint(Sketcher.Constraint("PointOnObject", 0, 3, -1))
sketch29.addConstraint(Sketcher.Constraint("Diameter", 0, Q("0.84 in")))
sketch29.addConstraint(Sketcher.Constraint("DistanceX", -1, 1, 0, 3, Q("35 in")))
pad29 = body29.newObject("PartDesign::Pad", "Pad028")
pad29.Profile = sketch29
pad29.Length = Q("168 in")
body30 = doc.addObject("PartDesign::Body", "Body029")

# Sketch on XY plane
sketch30 = body30.newObject("Sketcher::SketchObject", "Sketch029")
sketch30.AttachmentSupport = (doc.getObject("XY_Plane029"), [""])
sketch30.MapMode = "FlatFace"
sketch30.AttachmentOffset = App.Placement(App.Vector(0, 0, -2182.183759), App.Rotation())
sketch30.addGeometry(Part.Circle(App.Vector(762, 0, 0), App.Vector(0, 0, 1), 11), False)
sketch30.addConstraint(Sketcher.Constraint("PointOnObject", 0, 3, -1))
sketch30.addConstraint(Sketcher.Constraint("Diameter", 0, Q("0.84 in")))
sketch30.addConstraint(Sketcher.Constraint("DistanceX", -1, 1, 0, 3, Q("30 in")))
pad30 = body30.newObject("PartDesign::Pad", "Pad029")
pad30.Profile = sketch30
pad30.Length = 4364.367519
body31 = doc.addObject("PartDesign::Body", "Body030")

# Sketch on XY plane
sketch31 = body31.newObject("Sketcher::SketchObject", "Sketch030")
sketch31.AttachmentSupport = (doc.getObject("XY_Plane030"), [""])
sketch31.MapMode = "FlatFace"
sketch31.AttachmentOffset = App.Placement(App.Vector(0, 0, -2222.463714), App.Rotation())
sketch31.addGeometry(Part.Circle(App.Vector(635, 0, 0), App.Vector(0, 0, 1), 11), False)
sketch31.addConstraint(Sketcher.Constraint("PointOnObject", 0, 3, -1))
sketch31.addConstraint(Sketcher.Constraint("Diameter", 0, Q("0.84 in")))
sketch31.addConstraint(Sketcher.Constraint("DistanceX", -1, 1, 0, 3, Q("25 in")))
pad31 = body31.newObject("PartDesign::Pad", "Pad030")
pad31.Profile = sketch31
pad31.Length = 4444.927428
body32 = doc.addObject("PartDesign::Body", "Body031")

# Sketch on XY plane
sketch32 = body32.newObject("Sketcher::SketchObject", "Sketch031")
sketch32.AttachmentSupport = (doc.getObject("XY_Plane031"), [""])
sketch32.MapMode = "FlatFace"
sketch32.AttachmentOffset = App.Placement(App.Vector(0, 0, -2254.884911), App.Rotation())
sketch32.addGeometry(Part.Circle(App.Vector(508, 0, 0), App.Vector(0, 0, 1), 11), False)
sketch32.addConstraint(Sketcher.Constraint("PointOnObject", 0, 3, -1))
sketch32.addConstraint(Sketcher.Constraint("Diameter", 0, Q("0.84 in")))
sketch32.addConstraint(Sketcher.Constraint("DistanceX", -1, 1, 0, 3, Q("20 in")))
pad32 = body32.newObject("PartDesign::Pad", "Pad031")
pad32.Profile = sketch32
pad32.Length = 4509.769821
body33 = doc.addObject("PartDesign::Body", "Body032")

# Sketch on XY plane
sketch33 = body33.newObject("Sketcher::SketchObject", "Sketch032")
sketch33.AttachmentSupport = (doc.getObject("XY_Plane032"), [""])
sketch33.MapMode = "FlatFace"
sketch33.AttachmentOffset = App.Placement(App.Vector(0, 0, -2279.782656), App.Rotation())
sketch33.addGeometry(Part.Circle(App.Vector(381, 0, 0), App.Vector(0, 0, 1), 11), False)
sketch33.addConstraint(Sketcher.Constraint("PointOnObject", 0, 3, -1))
sketch33.addConstraint(Sketcher.Constraint("Diameter", 0, Q("0.84 in")))
sketch33.addConstraint(Sketcher.Constraint("DistanceX", -1, 1, 0, 3, Q("15 in")))
pad33 = body33.newObject("PartDesign::Pad", "Pad032")
pad33.Profile = sketch33
pad33.Length = 4559.565313
body34 = doc.addObject("PartDesign::Body", "Body033")

# Sketch on XY plane
sketch34 = body34.newObject("Sketcher::SketchObject", "Sketch033")
sketch34.AttachmentSupport = (doc.getObject("XY_Plane033"), [""])
sketch34.MapMode = "FlatFace"
sketch34.AttachmentOffset = App.Placement(App.Vector(0, 0, -2297.401567), App.Rotation())
sketch34.addGeometry(Part.Circle(App.Vector(254, 0, 0), App.Vector(0, 0, 1), 11), False)
sketch34.addConstraint(Sketcher.Constraint("PointOnObject", 0, 3, -1))
sketch34.addConstraint(Sketcher.Constraint("Diameter", 0, Q("0.84 in")))
sketch34.addConstraint(Sketcher.Constraint("DistanceX", -1, 1, 0, 3, Q("10 in")))
pad34 = body34.newObject("PartDesign::Pad", "Pad033")
pad34.Profile = sketch34
pad34.Length = 4594.803134
body35 = doc.addObject("PartDesign::Body", "Body034")

# Sketch on XY plane
sketch35 = body35.newObject("Sketcher::SketchObject", "Sketch034")
sketch35.AttachmentSupport = (doc.getObject("XY_Plane034"), [""])
sketch35.MapMode = "FlatFace"
sketch35.AttachmentOffset = App.Placement(App.Vector(0, 0, -2307.908352), App.Rotation())
sketch35.addGeometry(Part.Circle(App.Vector(127, 0, 0), App.Vector(0, 0, 1), 11), False)
sketch35.addConstraint(Sketcher.Constraint("PointOnObject", 0, 3, -1))
sketch35.addConstraint(Sketcher.Constraint("Diameter", 0, Q("0.84 in")))
sketch35.addConstraint(Sketcher.Constraint("DistanceX", -1, 1, 0, 3, Q("5 in")))
pad35 = body35.newObject("PartDesign::Pad", "Pad034")
pad35.Profile = sketch35
pad35.Length = 4615.816703
body36 = doc.addObject("PartDesign::Body", "Body035")

# Sketch on XY plane
sketch36 = body36.newObject("Sketcher::SketchObject", "Sketch035")
sketch36.AttachmentSupport = (doc.getObject("XY_Plane035"), [""])
sketch36.MapMode = "FlatFace"
sketch36.AttachmentOffset = App.Placement(App.Vector(0, 0, -91 * 25.4), App.Rotation())
sketch36.addGeometry(Part.Circle(App.Vector(0, 0, 0), App.Vector(0, 0, 1), 11), False)
sketch36.addConstraint(Sketcher.Constraint("Coincident", 0, 3, -1, 1))
sketch36.addConstraint(Sketcher.Constraint("Diameter", 0, Q("0.84 in")))
pad36 = body36.newObject("PartDesign::Pad", "Pad035")
pad36.Profile = sketch36
pad36.Length = Q("182 in")
body37 = doc.addObject("PartDesign::Body", "Body036")
doc.recompute()

mirroring = doc.addObject("Part::Mirroring", "Mirroring")
mirroring.Source = body9
mirroring.Base = App.Vector(0, 0, 0)
mirroring.Normal = App.Vector(0, 0, 1)
body37.BaseFeature = mirroring
doc.recompute()
body38 = doc.addObject("PartDesign::Body", "Body037")
doc.recompute()

mirroring2 = doc.addObject("Part::Mirroring", "Mirroring001")
mirroring2.Source = body8
mirroring2.Base = App.Vector(0, 0, 0)
mirroring2.Normal = App.Vector(0, 0, 1)
body38.BaseFeature = mirroring2
doc.recompute()
body39 = doc.addObject("PartDesign::Body", "Body038")
doc.recompute()

mirroring3 = doc.addObject("Part::Mirroring", "Mirroring002")
mirroring3.Source = body7
mirroring3.Base = App.Vector(0, 0, 0)
mirroring3.Normal = App.Vector(0, 0, 1)
body39.BaseFeature = mirroring3
doc.recompute()
body40 = doc.addObject("PartDesign::Body", "Body039")
doc.recompute()

mirroring4 = doc.addObject("Part::Mirroring", "Mirroring003")
mirroring4.Source = body6
mirroring4.Base = App.Vector(0, 0, 0)
mirroring4.Normal = App.Vector(0, 0, 1)
body40.BaseFeature = mirroring4
doc.recompute()
body41 = doc.addObject("PartDesign::Body", "Body040")
doc.recompute()

mirroring5 = doc.addObject("Part::Mirroring", "Mirroring004")
mirroring5.Source = body5
mirroring5.Base = App.Vector(0, 0, 0)
mirroring5.Normal = App.Vector(0, 0, 1)
body41.BaseFeature = mirroring5
doc.recompute()
body42 = doc.addObject("PartDesign::Body", "Body041")
doc.recompute()

mirroring6 = doc.addObject("Part::Mirroring", "Mirroring005")
mirroring6.Source = body17
mirroring6.Base = App.Vector(0, 0, 0)
mirroring6.Normal = App.Vector(0, 0, 1)
body42.BaseFeature = mirroring6
doc.recompute()
body43 = doc.addObject("PartDesign::Body", "Body042")
doc.recompute()

mirroring7 = doc.addObject("Part::Mirroring", "Mirroring006")
mirroring7.Source = body4
mirroring7.Base = App.Vector(0, 0, 0)
mirroring7.Normal = App.Vector(0, 0, 1)
body43.BaseFeature = mirroring7
doc.recompute()
body44 = doc.addObject("PartDesign::Body", "Body043")
doc.recompute()

mirroring8 = doc.addObject("Part::Mirroring", "Mirroring007")
mirroring8.Source = body16
mirroring8.Base = App.Vector(0, 0, 0)
mirroring8.Normal = App.Vector(0, 0, 1)
body44.BaseFeature = mirroring8
doc.recompute()
body45 = doc.addObject("PartDesign::Body", "Body044")
doc.recompute()

mirroring9 = doc.addObject("Part::Mirroring", "Mirroring008")
mirroring9.Source = body3
mirroring9.Base = App.Vector(0, 0, 0)
mirroring9.Normal = App.Vector(0, 0, 1)
body45.BaseFeature = mirroring9
doc.recompute()
body46 = doc.addObject("PartDesign::Body", "Body045")
doc.recompute()

mirroring10 = doc.addObject("Part::Mirroring", "Mirroring009")
mirroring10.Source = body15
mirroring10.Base = App.Vector(0, 0, 0)
mirroring10.Normal = App.Vector(0, 0, 1)
body46.BaseFeature = mirroring10
doc.recompute()
body47 = doc.addObject("PartDesign::Body", "Body046")
doc.recompute()

mirroring11 = doc.addObject("Part::Mirroring", "Mirroring010")
mirroring11.Source = body2
mirroring11.Base = App.Vector(0, 0, 0)
mirroring11.Normal = App.Vector(0, 0, 1)
body47.BaseFeature = mirroring11
doc.recompute()
body48 = doc.addObject("PartDesign::Body", "Body047")
doc.recompute()

mirroring12 = doc.addObject("Part::Mirroring", "Mirroring011")
mirroring12.Source = body14
mirroring12.Base = App.Vector(0, 0, 0)
mirroring12.Normal = App.Vector(0, 0, 1)
body48.BaseFeature = mirroring12
doc.recompute()
body49 = doc.addObject("PartDesign::Body", "Body048")
doc.recompute()

mirroring13 = doc.addObject("Part::Mirroring", "Mirroring012")
mirroring13.Source = body
mirroring13.Base = App.Vector(0, 0, 0)
mirroring13.Normal = App.Vector(0, 0, 1)
body49.BaseFeature = mirroring13
doc.recompute()
body50 = doc.addObject("PartDesign::Body", "Body049")
doc.recompute()

mirroring14 = doc.addObject("Part::Mirroring", "Mirroring013")
mirroring14.Source = body13
mirroring14.Base = App.Vector(0, 0, 0)
mirroring14.Normal = App.Vector(0, 0, 1)
body50.BaseFeature = mirroring14
doc.recompute()
body51 = doc.addObject("PartDesign::Body", "Body050")
doc.recompute()

mirroring15 = doc.addObject("Part::Mirroring", "Mirroring014")
mirroring15.Source = body12
mirroring15.Base = App.Vector(0, 0, 0)
mirroring15.Normal = App.Vector(0, 0, 1)
body51.BaseFeature = mirroring15
doc.recompute()
body52 = doc.addObject("PartDesign::Body", "Body051")
doc.recompute()

mirroring16 = doc.addObject("Part::Mirroring", "Mirroring015")
mirroring16.Source = body11
mirroring16.Base = App.Vector(0, 0, 0)
mirroring16.Normal = App.Vector(0, 0, 1)
body52.BaseFeature = mirroring16
doc.recompute()
body53 = doc.addObject("PartDesign::Body", "Body052")
doc.recompute()

mirroring17 = doc.addObject("Part::Mirroring", "Mirroring016")
mirroring17.Source = body10
mirroring17.Base = App.Vector(0, 0, 0)
mirroring17.Normal = App.Vector(0, 0, 1)
body53.BaseFeature = mirroring17
doc.recompute()
body54 = doc.addObject("PartDesign::Body", "Body053")
doc.recompute()

mirroring18 = doc.addObject("Part::Mirroring", "Mirroring017")
mirroring18.Source = body30
mirroring18.Base = App.Vector(0, 0, 0)
mirroring18.Normal = App.Vector(1, 0, 0)
body54.BaseFeature = mirroring18
doc.recompute()
body55 = doc.addObject("PartDesign::Body", "Body054")
doc.recompute()

mirroring19 = doc.addObject("Part::Mirroring", "Mirroring018")
mirroring19.Source = body29
mirroring19.Base = App.Vector(0, 0, 0)
mirroring19.Normal = App.Vector(1, 0, 0)
body55.BaseFeature = mirroring19
doc.recompute()
body56 = doc.addObject("PartDesign::Body", "Body055")
doc.recompute()

mirroring20 = doc.addObject("Part::Mirroring", "Mirroring019")
mirroring20.Source = body28
mirroring20.Base = App.Vector(0, 0, 0)
mirroring20.Normal = App.Vector(1, 0, 0)
body56.BaseFeature = mirroring20
doc.recompute()
body57 = doc.addObject("PartDesign::Body", "Body056")
doc.recompute()

mirroring21 = doc.addObject("Part::Mirroring", "Mirroring020")
mirroring21.Source = body27
mirroring21.Base = App.Vector(0, 0, 0)
mirroring21.Normal = App.Vector(1, 0, 0)
body57.BaseFeature = mirroring21
doc.recompute()
body58 = doc.addObject("PartDesign::Body", "Body057")
doc.recompute()

mirroring22 = doc.addObject("Part::Mirroring", "Mirroring021")
mirroring22.Source = body26
mirroring22.Base = App.Vector(0, 0, 0)
mirroring22.Normal = App.Vector(1, 0, 0)
body58.BaseFeature = mirroring22
doc.recompute()
body59 = doc.addObject("PartDesign::Body", "Body058")
doc.recompute()

mirroring23 = doc.addObject("Part::Mirroring", "Mirroring022")
mirroring23.Source = body25
mirroring23.Base = App.Vector(0, 0, 0)
mirroring23.Normal = App.Vector(1, 0, 0)
body59.BaseFeature = mirroring23
doc.recompute()
body60 = doc.addObject("PartDesign::Body", "Body059")
doc.recompute()

mirroring24 = doc.addObject("Part::Mirroring", "Mirroring023")
mirroring24.Source = body24
mirroring24.Base = App.Vector(0, 0, 0)
mirroring24.Normal = App.Vector(1, 0, 0)
body60.BaseFeature = mirroring24
doc.recompute()
body61 = doc.addObject("PartDesign::Body", "Body060")
doc.recompute()

mirroring25 = doc.addObject("Part::Mirroring", "Mirroring024")
mirroring25.Source = body23
mirroring25.Base = App.Vector(0, 0, 0)
mirroring25.Normal = App.Vector(1, 0, 0)
body61.BaseFeature = mirroring25
doc.recompute()
body62 = doc.addObject("PartDesign::Body", "Body061")
doc.recompute()

mirroring26 = doc.addObject("Part::Mirroring", "Mirroring025")
mirroring26.Source = body35
mirroring26.Base = App.Vector(0, 0, 0)
mirroring26.Normal = App.Vector(1, 0, 0)
body62.BaseFeature = mirroring26
doc.recompute()
body63 = doc.addObject("PartDesign::Body", "Body062")
doc.recompute()

mirroring27 = doc.addObject("Part::Mirroring", "Mirroring026")
mirroring27.Source = body22
mirroring27.Base = App.Vector(0, 0, 0)
mirroring27.Normal = App.Vector(1, 0, 0)
body63.BaseFeature = mirroring27
doc.recompute()
body64 = doc.addObject("PartDesign::Body", "Body063")
doc.recompute()

mirroring28 = doc.addObject("Part::Mirroring", "Mirroring027")
mirroring28.Source = body34
mirroring28.Base = App.Vector(0, 0, 0)
mirroring28.Normal = App.Vector(1, 0, 0)
body64.BaseFeature = mirroring28
doc.recompute()
body65 = doc.addObject("PartDesign::Body", "Body064")
doc.recompute()

mirroring29 = doc.addObject("Part::Mirroring", "Mirroring028")
mirroring29.Source = body21
mirroring29.Base = App.Vector(0, 0, 0)
mirroring29.Normal = App.Vector(1, 0, 0)
body65.BaseFeature = mirroring29
doc.recompute()
body66 = doc.addObject("PartDesign::Body", "Body065")
doc.recompute()

mirroring30 = doc.addObject("Part::Mirroring", "Mirroring029")
mirroring30.Source = body33
mirroring30.Base = App.Vector(0, 0, 0)
mirroring30.Normal = App.Vector(1, 0, 0)
body66.BaseFeature = mirroring30
doc.recompute()
body67 = doc.addObject("PartDesign::Body", "Body066")
doc.recompute()

mirroring31 = doc.addObject("Part::Mirroring", "Mirroring030")
mirroring31.Source = body20
mirroring31.Base = App.Vector(0, 0, 0)
mirroring31.Normal = App.Vector(1, 0, 0)
body67.BaseFeature = mirroring31
doc.recompute()
body68 = doc.addObject("PartDesign::Body", "Body067")
doc.recompute()

mirroring32 = doc.addObject("Part::Mirroring", "Mirroring031")
mirroring32.Source = body32
mirroring32.Base = App.Vector(0, 0, 0)
mirroring32.Normal = App.Vector(1, 0, 0)
body68.BaseFeature = mirroring32
doc.recompute()
body69 = doc.addObject("PartDesign::Body", "Body068")
doc.recompute()

mirroring33 = doc.addObject("Part::Mirroring", "Mirroring032")
mirroring33.Source = body19
mirroring33.Base = App.Vector(0, 0, 0)
mirroring33.Normal = App.Vector(1, 0, 0)
body69.BaseFeature = mirroring33
doc.recompute()
body70 = doc.addObject("PartDesign::Body", "Body069")
doc.recompute()

mirroring34 = doc.addObject("Part::Mirroring", "Mirroring033")
mirroring34.Source = body31
mirroring34.Base = App.Vector(0, 0, 0)
mirroring34.Normal = App.Vector(1, 0, 0)
body70.BaseFeature = mirroring34
doc.recompute()

doc.recompute()
